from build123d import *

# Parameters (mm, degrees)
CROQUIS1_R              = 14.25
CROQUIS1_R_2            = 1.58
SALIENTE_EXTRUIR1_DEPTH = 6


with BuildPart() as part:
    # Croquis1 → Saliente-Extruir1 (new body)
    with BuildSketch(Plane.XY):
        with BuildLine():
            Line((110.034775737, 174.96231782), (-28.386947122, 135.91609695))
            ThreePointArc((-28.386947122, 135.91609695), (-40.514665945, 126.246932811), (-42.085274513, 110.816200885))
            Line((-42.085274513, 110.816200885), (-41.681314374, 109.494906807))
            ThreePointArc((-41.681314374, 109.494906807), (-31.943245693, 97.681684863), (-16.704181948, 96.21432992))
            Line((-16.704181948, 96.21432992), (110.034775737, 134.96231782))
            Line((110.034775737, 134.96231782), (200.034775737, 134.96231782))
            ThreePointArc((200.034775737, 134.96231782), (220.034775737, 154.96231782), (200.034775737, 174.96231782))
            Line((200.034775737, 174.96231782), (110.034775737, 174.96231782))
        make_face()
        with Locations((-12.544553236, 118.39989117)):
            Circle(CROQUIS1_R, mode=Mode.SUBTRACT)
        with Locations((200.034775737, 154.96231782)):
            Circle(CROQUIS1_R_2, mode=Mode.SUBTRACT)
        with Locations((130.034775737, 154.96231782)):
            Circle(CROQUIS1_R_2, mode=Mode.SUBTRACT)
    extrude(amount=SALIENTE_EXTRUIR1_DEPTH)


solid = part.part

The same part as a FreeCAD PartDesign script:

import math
import FreeCAD as App
import Part
import Sketcher
from FreeCAD import Vector
Q = App.Units.Quantity

doc = App.newDocument("Part")
body = doc.addObject("PartDesign::Body", "Body")

sketch1 = body.newObject("Sketcher::SketchObject", "Sketch")
sketch1.AttachmentSupport = (doc.getObject("XY_Plane"), [""])
sketch1.MapMode = "FlatFace"
sketch1.addGeometry(Part.LineSegment(Vector(110, 175, 0), Vector(-28.4, 135.9, 0)), False)
sketch1.addGeometry(Part.ArcOfCircle(Part.Circle(Vector(-23, 116.7, 0), Vector(0, 0, 1), 20), math.radians(106), math.radians(197)), False)
sketch1.addGeometry(Part.LineSegment(Vector(-42.1, 110.8, 0), Vector(-41.7, 109.5, 0)), False)
sketch1.addGeometry(Part.ArcOfCircle(Part.Circle(Vector(-22.6, 115.3, 0), Vector(0, 0, 1), 20), math.radians(-163), math.radians(-73)), False)
sketch1.addGeometry(Part.LineSegment(Vector(-16.7, 96.2, 0), Vector(110, 135, 0)), False)
sketch1.addGeometry(Part.LineSegment(Vector(110, 135, 0), Vector(200, 135, 0)), False)
sketch1.addGeometry(Part.ArcOfCircle(Part.Circle(Vector(200, 155, 0), Vector(0, 0, 1), 20), math.radians(-90), math.radians(90)), False)
sketch1.addGeometry(Part.LineSegment(Vector(200, 175, 0), Vector(110, 175, 0)), False)
sketch1.addGeometry(Part.Circle(Vector(-12.5, 118.4, 0), Vector(0, 0, 1), 14.2), False)
sketch1.addGeometry(Part.Circle(Vector(130, 155, 0), Vector(0, 0, 1), 1.6), False)
sketch1.addGeometry(Part.Circle(Vector(200, 155, 0), Vector(0, 0, 1), 1.6), False)
sketch1.addConstraint(Sketcher.Constraint("Tangent", 0, 2, 1, 1))
sketch1.addConstraint(Sketcher.Constraint("Tangent", 1, 2, 2, 1))
sketch1.addConstraint(Sketcher.Constraint("Tangent", 2, 2, 3, 1))
sketch1.addConstraint(Sketcher.Constraint("Tangent", 3, 2, 4, 1))
sketch1.addConstraint(Sketcher.Constraint("Coincident", 4, 2, 5, 1))
sketch1.addConstraint(Sketcher.Constraint("Tangent", 5, 2, 6, 1))
sketch1.addConstraint(Sketcher.Constraint("Tangent", 6, 2, 7, 1))
sketch1.addConstraint(Sketcher.Constraint("Coincident", 7, 2, 0, 1))
sketch1.addConstraint(Sketcher.Constraint("Horizontal", 5))
sketch1.addConstraint(Sketcher.Constraint("Horizontal", 7))
sketch1.addConstraint(Sketcher.Constraint("Coincident", 10, 3, 6, 3))
sketch1.addConstraint(Sketcher.Constraint("Equal", 1, 3))
sketch1.addConstraint(Sketcher.Constraint("Equal", 9, 10))
sketch1.addConstraint(Sketcher.Constraint("Perpendicular", 2, 4))
sketch1.addConstraint(Sketcher.Constraint("Horizontal", 6, 3, 9, 3))
sketch1.addConstraint(Sketcher.Constraint("Vertical", 4, 2, 7, 2))
sketch1.addConstraint(Sketcher.Constraint("Radius", 6, Q("20 mm")))
sketch1.addConstraint(Sketcher.Constraint("Diameter", 8, Q("28.5 mm")))
sketch1.addConstraint(Sketcher.Constraint("Diameter", 9, Q("3.16 mm")))
sketch1.addConstraint(Sketcher.Constraint("DistanceX", 5, 1, 5, 2, Q("90 mm")))
sketch1.addConstraint(Sketcher.Constraint("Angle", 2, Q("-73 deg")))
sketch1.addConstraint(Sketcher.Constraint("DistanceX", 9, 3, 6, 3, Q("70 mm")))
sketch1.addConstraint(Sketcher.Constraint("Radius", 1, Q("20.002886 mm")))
sketch1.addConstraint(Sketcher.Constraint("DistanceY", -1, 1, 1, 2, Q("110.816201 mm")))
sketch1.addConstraint(Sketcher.Constraint("DistanceX", 1, 3, -1, 1, Q("22.95642 mm")))
sketch1.addConstraint(Sketcher.Constraint("DistanceX", 3, 3, -1, 1, Q("22.55246 mm")))
sketch1.addConstraint(Sketcher.Constraint("DistanceY", -1, 1, 8, 3, Q("118.399891 mm")))
sketch1.addConstraint(Sketcher.Constraint("DistanceY", 1, 3, 6, 3, Q("38.297839 mm")))
sketch1.addConstraint(Sketcher.Constraint("DistanceX", 8, 3, 6, 3, Q("212.579329 mm")))
pad1 = body.newObject("PartDesign::Pad", "Pad")
pad1.Profile = sketch1
pad1.Length = 6

doc.recompute()
